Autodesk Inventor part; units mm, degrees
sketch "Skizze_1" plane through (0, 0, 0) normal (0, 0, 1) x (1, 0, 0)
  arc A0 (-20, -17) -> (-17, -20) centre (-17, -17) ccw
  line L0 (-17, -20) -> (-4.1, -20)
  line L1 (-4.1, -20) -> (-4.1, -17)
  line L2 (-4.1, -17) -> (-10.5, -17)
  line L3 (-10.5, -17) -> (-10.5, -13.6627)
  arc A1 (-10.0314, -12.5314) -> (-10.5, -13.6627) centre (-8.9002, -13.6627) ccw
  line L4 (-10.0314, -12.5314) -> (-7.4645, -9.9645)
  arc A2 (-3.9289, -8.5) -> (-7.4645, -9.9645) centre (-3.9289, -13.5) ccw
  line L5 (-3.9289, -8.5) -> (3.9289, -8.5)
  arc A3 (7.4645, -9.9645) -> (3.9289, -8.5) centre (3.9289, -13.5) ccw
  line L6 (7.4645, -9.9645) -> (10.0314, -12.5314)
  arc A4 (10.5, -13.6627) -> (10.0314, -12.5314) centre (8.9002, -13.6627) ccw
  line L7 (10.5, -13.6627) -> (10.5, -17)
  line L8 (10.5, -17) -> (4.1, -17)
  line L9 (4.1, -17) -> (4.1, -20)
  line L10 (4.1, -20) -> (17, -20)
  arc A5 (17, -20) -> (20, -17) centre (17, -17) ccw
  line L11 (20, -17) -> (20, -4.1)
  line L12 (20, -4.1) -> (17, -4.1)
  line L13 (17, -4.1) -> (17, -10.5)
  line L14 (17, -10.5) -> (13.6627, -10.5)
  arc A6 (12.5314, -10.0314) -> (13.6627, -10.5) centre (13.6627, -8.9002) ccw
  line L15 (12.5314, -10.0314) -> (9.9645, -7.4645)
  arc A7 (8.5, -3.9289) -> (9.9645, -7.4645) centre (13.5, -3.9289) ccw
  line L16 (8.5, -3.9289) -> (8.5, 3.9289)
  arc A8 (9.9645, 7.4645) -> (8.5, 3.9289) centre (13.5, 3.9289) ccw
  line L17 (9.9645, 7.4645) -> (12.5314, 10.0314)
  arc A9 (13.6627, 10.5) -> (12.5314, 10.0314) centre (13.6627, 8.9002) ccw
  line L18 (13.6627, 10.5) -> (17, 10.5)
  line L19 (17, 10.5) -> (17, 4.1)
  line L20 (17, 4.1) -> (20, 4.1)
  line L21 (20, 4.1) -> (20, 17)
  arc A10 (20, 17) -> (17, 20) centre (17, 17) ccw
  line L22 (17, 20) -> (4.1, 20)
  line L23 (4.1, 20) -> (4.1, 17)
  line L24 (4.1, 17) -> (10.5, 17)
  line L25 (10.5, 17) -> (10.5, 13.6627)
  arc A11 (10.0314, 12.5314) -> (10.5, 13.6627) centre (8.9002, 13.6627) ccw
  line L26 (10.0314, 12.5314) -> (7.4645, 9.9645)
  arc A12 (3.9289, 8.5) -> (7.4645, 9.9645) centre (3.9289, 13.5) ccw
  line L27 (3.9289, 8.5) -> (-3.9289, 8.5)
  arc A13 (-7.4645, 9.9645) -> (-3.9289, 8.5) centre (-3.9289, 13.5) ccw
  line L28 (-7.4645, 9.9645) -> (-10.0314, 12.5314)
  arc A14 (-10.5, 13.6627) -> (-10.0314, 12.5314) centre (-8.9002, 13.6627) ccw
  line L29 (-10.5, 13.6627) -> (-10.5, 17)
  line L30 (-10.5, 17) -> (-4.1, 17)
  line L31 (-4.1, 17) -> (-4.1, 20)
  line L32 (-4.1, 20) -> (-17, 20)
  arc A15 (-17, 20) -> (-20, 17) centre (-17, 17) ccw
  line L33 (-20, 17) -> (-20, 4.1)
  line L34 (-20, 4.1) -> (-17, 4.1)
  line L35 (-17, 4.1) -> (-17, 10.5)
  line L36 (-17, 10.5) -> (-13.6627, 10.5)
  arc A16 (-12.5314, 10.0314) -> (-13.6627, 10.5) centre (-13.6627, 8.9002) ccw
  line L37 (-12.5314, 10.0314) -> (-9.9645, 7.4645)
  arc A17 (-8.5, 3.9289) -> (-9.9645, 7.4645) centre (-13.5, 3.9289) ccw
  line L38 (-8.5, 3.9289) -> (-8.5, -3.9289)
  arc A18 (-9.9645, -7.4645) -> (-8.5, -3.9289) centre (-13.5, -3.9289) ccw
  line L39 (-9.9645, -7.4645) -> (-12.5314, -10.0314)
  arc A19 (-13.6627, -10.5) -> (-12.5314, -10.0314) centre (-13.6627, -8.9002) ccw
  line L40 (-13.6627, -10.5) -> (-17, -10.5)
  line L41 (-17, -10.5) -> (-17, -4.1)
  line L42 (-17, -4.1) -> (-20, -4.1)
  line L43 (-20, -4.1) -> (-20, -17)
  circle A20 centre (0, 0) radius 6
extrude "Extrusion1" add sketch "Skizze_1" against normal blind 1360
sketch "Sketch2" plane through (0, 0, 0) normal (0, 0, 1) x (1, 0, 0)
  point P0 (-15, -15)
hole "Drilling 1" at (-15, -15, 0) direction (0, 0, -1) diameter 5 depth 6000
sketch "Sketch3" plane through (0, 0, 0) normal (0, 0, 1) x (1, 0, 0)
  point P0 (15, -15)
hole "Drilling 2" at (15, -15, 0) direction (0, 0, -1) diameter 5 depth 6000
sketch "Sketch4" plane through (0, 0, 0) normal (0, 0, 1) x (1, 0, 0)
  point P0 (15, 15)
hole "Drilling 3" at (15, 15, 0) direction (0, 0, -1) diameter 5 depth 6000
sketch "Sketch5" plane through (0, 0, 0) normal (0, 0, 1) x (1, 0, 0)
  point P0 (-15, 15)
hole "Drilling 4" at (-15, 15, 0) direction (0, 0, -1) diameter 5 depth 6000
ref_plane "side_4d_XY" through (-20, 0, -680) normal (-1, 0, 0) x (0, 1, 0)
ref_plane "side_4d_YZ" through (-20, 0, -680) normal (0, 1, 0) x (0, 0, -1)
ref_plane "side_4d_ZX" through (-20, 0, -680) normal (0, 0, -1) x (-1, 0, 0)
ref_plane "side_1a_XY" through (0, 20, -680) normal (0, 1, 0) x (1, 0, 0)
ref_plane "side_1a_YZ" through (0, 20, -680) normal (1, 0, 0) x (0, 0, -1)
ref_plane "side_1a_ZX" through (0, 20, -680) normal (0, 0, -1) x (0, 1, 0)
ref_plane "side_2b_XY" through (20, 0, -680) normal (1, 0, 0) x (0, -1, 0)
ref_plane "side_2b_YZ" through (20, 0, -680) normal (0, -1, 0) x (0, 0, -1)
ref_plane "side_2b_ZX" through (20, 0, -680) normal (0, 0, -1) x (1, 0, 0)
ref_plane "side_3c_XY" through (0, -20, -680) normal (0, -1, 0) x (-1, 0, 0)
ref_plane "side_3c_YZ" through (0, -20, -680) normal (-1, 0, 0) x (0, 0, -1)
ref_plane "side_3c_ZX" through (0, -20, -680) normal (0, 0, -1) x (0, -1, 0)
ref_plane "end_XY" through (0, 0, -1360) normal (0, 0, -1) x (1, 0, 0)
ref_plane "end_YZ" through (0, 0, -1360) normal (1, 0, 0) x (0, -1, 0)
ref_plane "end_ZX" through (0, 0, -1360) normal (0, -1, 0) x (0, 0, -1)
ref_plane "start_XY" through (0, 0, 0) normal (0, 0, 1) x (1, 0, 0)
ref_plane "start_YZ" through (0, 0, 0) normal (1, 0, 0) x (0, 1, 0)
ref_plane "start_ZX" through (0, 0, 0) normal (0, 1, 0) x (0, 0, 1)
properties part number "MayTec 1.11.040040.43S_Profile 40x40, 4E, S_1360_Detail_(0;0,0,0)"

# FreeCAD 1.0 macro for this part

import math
import FreeCAD as App
import Part
import Sketcher
from FreeCAD import Vector

doc = App.newDocument("Part")
body = doc.addObject("PartDesign::Body", "Body")

# Sketch on XY plane
sketch1 = body.newObject("Sketcher::SketchObject", "Sketch")
sketch1.AttachmentSupport = (doc.getObject("XY_Plane"), [""])
sketch1.MapMode = "FlatFace"
sketch1.addGeometry(Part.LineSegment(Vector(-20, -4.1, 0), Vector(-20, -17, 0)), False)
sketch1.addGeometry(Part.ArcOfCircle(Part.Circle(Vector(-17, -17, 0), Vector(0, 0, 1), 3), math.radians(180), math.radians(270)), False)
sketch1.addGeometry(Part.LineSegment(Vector(-17, -20, 0), Vector(-4.1, -20, 0)), False)
sketch1.addGeometry(Part.LineSegment(Vector(-4.1, -20, 0), Vector(-4.1, -17, 0)), False)
sketch1.addGeometry(Part.LineSegment(Vector(-4.1, -17, 0), Vector(-10.5, -17, 0)), False)
sketch1.addGeometry(Part.LineSegment(Vector(-10.5, -17, 0), Vector(-10.5, -13.7, 0)), False)
sketch1.addGeometry(Part.ArcOfCircle(Part.Circle(Vector(-8.9, -13.7, 0), Vector(0, 0, 1), 1.6), math.radians(135), math.radians(180)), False)
sketch1.addGeometry(Part.LineSegment(Vector(-10, -12.5, 0), Vector(-7.5, -10, 0)), False)
sketch1.addGeometry(Part.ArcOfCircle(Part.Circle(Vector(-3.9, -13.5, 0), Vector(0, 0, 1), 5), math.radians(90), math.radians(135)), False)
sketch1.addGeometry(Part.LineSegment(Vector(-3.9, -8.5, 0), Vector(3.9, -8.5, 0)), False)
sketch1.addGeometry(Part.ArcOfCircle(Part.Circle(Vector(3.9, -13.5, 0), Vector(0, 0, 1), 5), math.radians(45), math.radians(90)), False)
sketch1.addGeometry(Part.LineSegment(Vector(7.5, -10, 0), Vector(10, -12.5, 0)), False)
sketch1.addGeometry(Part.ArcOfCircle(Part.Circle(Vector(8.9, -13.7, 0), Vector(0, 0, 1), 1.6), math.radians(0), math.radians(45)), False)
sketch1.addGeometry(Part.LineSegment(Vector(10.5, -13.7, 0), Vector(10.5, -17, 0)), False)
sketch1.addGeometry(Part.LineSegment(Vector(10.5, -17, 0), Vector(4.1, -17, 0)), False)
sketch1.addGeometry(Part.LineSegment(Vector(4.1, -17, 0), Vector(4.1, -20, 0)), False)
sketch1.addGeometry(Part.LineSegment(Vector(4.1, -20, 0), Vector(17, -20, 0)), False)
sketch1.addGeometry(Part.ArcOfCircle(Part.Circle(Vector(17, -17, 0), Vector(0, 0, 1), 3), math.radians(-90), math.radians(0)), False)
sketch1.addGeometry(Part.LineSegment(Vector(20, -17, 0), Vector(20, -4.1, 0)), False)
sketch1.addGeometry(Part.LineSegment(Vector(20, -4.1, 0), Vector(17, -4.1, 0)), False)
sketch1.addGeometry(Part.LineSegment(Vector(17, -4.1, 0), Vector(17, -10.5, 0)), False)
sketch1.addGeometry(Part.LineSegment(Vector(17, -10.5, 0), Vector(13.7, -10.5, 0)), False)
sketch1.addGeometry(Part.ArcOfCircle(Part.Circle(Vector(13.7, -8.9, 0), Vector(0, 0, 1), 1.6), math.radians(-135), math.radians(-90)), False)
sketch1.addGeometry(Part.LineSegment(Vector(12.5, -10, 0), Vector(10, -7.5, 0)), False)
sketch1.addGeometry(Part.ArcOfCircle(Part.Circle(Vector(13.5, -3.9, 0), Vector(0, 0, 1), 5), math.radians(180), math.radians(225)), False)
sketch1.addGeometry(Part.LineSegment(Vector(8.5, -3.9, 0), Vector(8.5, 3.9, 0)), False)
sketch1.addGeometry(Part.ArcOfCircle(Part.Circle(Vector(13.5, 3.9, 0), Vector(0, 0, 1), 5), math.radians(135), math.radians(180)), False)
sketch1.addGeometry(Part.LineSegment(Vector(10, 7.5, 0), Vector(12.5, 10, 0)), False)
sketch1.addGeometry(Part.ArcOfCircle(Part.Circle(Vector(13.7, 8.9, 0), Vector(0, 0, 1), 1.6), math.radians(90), math.radians(135)), False)
sketch1.addGeometry(Part.LineSegment(Vector(13.7, 10.5, 0), Vector(17, 10.5, 0)), False)
sketch1.addGeometry(Part.LineSegment(Vector(17, 10.5, 0), Vector(17, 4.1, 0)), False)
sketch1.addGeometry(Part.LineSegment(Vector(17, 4.1, 0), Vector(20, 4.1, 0)), False)
sketch1.addGeometry(Part.LineSegment(Vector(20, 4.1, 0), Vector(20, 17, 0)), False)
sketch1.addGeometry(Part.ArcOfCircle(Part.Circle(Vector(17, 17, 0), Vector(0, 0, 1), 3), math.radians(0), math.radians(90)), False)
sketch1.addGeometry(Part.LineSegment(Vector(17, 20, 0), Vector(4.1, 20, 0)), False)
sketch1.addGeometry(Part.LineSegment(Vector(4.1, 20, 0), Vector(4.1, 17, 0)), False)
sketch1.addGeometry(Part.LineSegment(Vector(4.1, 17, 0), Vector(10.5, 17, 0)), False)
sketch1.addGeometry(Part.LineSegment(Vector(10.5, 17, 0), Vector(10.5, 13.7, 0)), False)
sketch1.addGeometry(Part.ArcOfCircle(Part.Circle(Vector(8.9, 13.7, 0), Vector(0, 0, 1), 1.6), math.radians(-45), math.radians(0)), False)
sketch1.addGeometry(Part.LineSegment(Vector(10, 12.5, 0), Vector(7.5, 10, 0)), False)
sketch1.addGeometry(Part.ArcOfCircle(Part.Circle(Vector(3.9, 13.5, 0), Vector(0, 0, 1), 5), math.radians(-90), math.radians(-45)), False)
sketch1.addGeometry(Part.LineSegment(Vector(3.9, 8.5, 0), Vector(-3.9, 8.5, 0)), False)
sketch1.addGeometry(Part.ArcOfCircle(Part.Circle(Vector(-3.9, 13.5, 0), Vector(0, 0, 1), 5), math.radians(-135), math.radians(-90)), False)
sketch1.addGeometry(Part.LineSegment(Vector(-7.5, 10, 0), Vector(-10, 12.5, 0)), False)
sketch1.addGeometry(Part.ArcOfCircle(Part.Circle(Vector(-8.9, 13.7, 0), Vector(0, 0, 1), 1.6), math.radians(180), math.radians(225)), False)
sketch1.addGeometry(Part.LineSegment(Vector(-10.5, 13.7, 0), Vector(-10.5, 17, 0)), False)
sketch1.addGeometry(Part.LineSegment(Vector(-10.5, 17, 0), Vector(-4.1, 17, 0)), False)
sketch1.addGeometry(Part.LineSegment(Vector(-4.1, 17, 0), Vector(-4.1, 20, 0)), False)
sketch1.addGeometry(Part.LineSegment(Vector(-4.1, 20, 0), Vector(-17, 20, 0)), False)
sketch1.addGeometry(Part.ArcOfCircle(Part.Circle(Vector(-17, 17, 0), Vector(0, 0, 1), 3), math.radians(90), math.radians(180)), False)
sketch1.addGeometry(Part.LineSegment(Vector(-20, 17, 0), Vector(-20, 4.1, 0)), False)
sketch1.addGeometry(Part.LineSegment(Vector(-20, 4.1, 0), Vector(-17, 4.1, 0)), False)
sketch1.addGeometry(Part.LineSegment(Vector(-17, 4.1, 0), Vector(-17, 10.5, 0)), False)
sketch1.addGeometry(Part.LineSegment(Vector(-17, 10.5, 0), Vector(-13.7, 10.5, 0)), False)
sketch1.addGeometry(Part.ArcOfCircle(Part.Circle(Vector(-13.7, 8.9, 0), Vector(0, 0, 1), 1.6), math.radians(45), math.radians(90)), False)
sketch1.addGeometry(Part.LineSegment(Vector(-12.5, 10, 0), Vector(-10, 7.5, 0)), False)
sketch1.addGeometry(Part.ArcOfCircle(Part.Circle(Vector(-13.5, 3.9, 0), Vector(0, 0, 1), 5), math.radians(0), math.radians(45)), False)
sketch1.addGeometry(Part.LineSegment(Vector(-8.5, 3.9, 0), Vector(-8.5, -3.9, 0)), False)
sketch1.addGeometry(Part.ArcOfCircle(Part.Circle(Vector(-13.5, -3.9, 0), Vector(0, 0, 1), 5), math.radians(-45), math.radians(0)), False)
sketch1.addGeometry(Part.LineSegment(Vector(-10, -7.5, 0), Vector(-12.5, -10, 0)), False)
sketch1.addGeometry(Part.ArcOfCircle(Part.Circle(Vector(-13.7, -8.9, 0), Vector(0, 0, 1), 1.6), math.radians(-90), math.radians(-45)), False)
sketch1.addGeometry(Part.LineSegment(Vector(-13.7, -10.5, 0), Vector(-17, -10.5, 0)), False)
sketch1.addGeometry(Part.LineSegment(Vector(-17, -10.5, 0), Vector(-17, -4.1, 0)), False)
sketch1.addGeometry(Part.LineSegment(Vector(-17, -4.1, 0), Vector(-20, -4.1, 0)), False)
sketch1.addGeometry(Part.Circle(Vector(0, 0, 0), Vector(0, 0, 1), 6), False)
sketch1.addConstraint(Sketcher.Constraint("Tangent", 0, 2, 1, 1))
sketch1.addConstraint(Sketcher.Constraint("Tangent", 1, 2, 2, 1))
sketch1.addConstraint(Sketcher.Constraint("Coincident", 2, 2, 3, 1))
sketch1.addConstraint(Sketcher.Constraint("Coincident", 3, 2, 4, 1))
sketch1.addConstraint(Sketcher.Constraint("Coincident", 4, 2, 5, 1))
sketch1.addConstraint(Sketcher.Constraint("Tangent", 5, 2, 6, 2))
sketch1.addConstraint(Sketcher.Constraint("Tangent", 6, 1, 7, 1))
sketch1.addConstraint(Sketcher.Constraint("Tangent", 7, 2, 8, 2))
sketch1.addConstraint(Sketcher.Constraint("Tangent", 8, 1, 9, 1))
sketch1.addConstraint(Sketcher.Constraint("Tangent", 9, 2, 10, 2))
sketch1.addConstraint(Sketcher.Constraint("Tangent", 10, 1, 11, 1))
sketch1.addConstraint(Sketcher.Constraint("Tangent", 11, 2, 12, 2))
sketch1.addConstraint(Sketcher.Constraint("Tangent", 12, 1, 13, 1))
sketch1.addConstraint(Sketcher.Constraint("Coincident", 13, 2, 14, 1))
sketch1.addConstraint(Sketcher.Constraint("Coincident", 14, 2, 15, 1))
sketch1.addConstraint(Sketcher.Constraint("Coincident", 15, 2, 16, 1))
sketch1.addConstraint(Sketcher.Constraint("Tangent", 16, 2, 17, 1))
sketch1.addConstraint(Sketcher.Constraint("Tangent", 17, 2, 18, 1))
sketch1.addConstraint(Sketcher.Constraint("Coincident", 18, 2, 19, 1))
sketch1.addConstraint(Sketcher.Constraint("Coincident", 19, 2, 20, 1))
sketch1.addConstraint(Sketcher.Constraint("Coincident", 20, 2, 21, 1))
sketch1.addConstraint(Sketcher.Constraint("Tangent", 21, 2, 22, 2))
sketch1.addConstraint(Sketcher.Constraint("Tangent", 22, 1, 23, 1))
sketch1.addConstraint(Sketcher.Constraint("Tangent", 23, 2, 24, 2))
sketch1.addConstraint(Sketcher.Constraint("Tangent", 24, 1, 25, 1))
sketch1.addConstraint(Sketcher.Constraint("Tangent", 25, 2, 26, 2))
sketch1.addConstraint(Sketcher.Constraint("Tangent", 26, 1, 27, 1))
sketch1.addConstraint(Sketcher.Constraint("Tangent", 27, 2, 28, 2))
sketch1.addConstraint(Sketcher.Constraint("Tangent", 28, 1, 29, 1))
sketch1.addConstraint(Sketcher.Constraint("Coincident", 29, 2, 30, 1))
sketch1.addConstraint(Sketcher.Constraint("Coincident", 30, 2, 31, 1))
sketch1.addConstraint(Sketcher.Constraint("Coincident", 31, 2, 32, 1))
sketch1.addConstraint(Sketcher.Constraint("Tangent", 32, 2, 33, 1))
sketch1.addConstraint(Sketcher.Constraint("Tangent", 33, 2, 34, 1))
sketch1.addConstraint(Sketcher.Constraint("Coincident", 34, 2, 35, 1))
sketch1.addConstraint(Sketcher.Constraint("Coincident", 35, 2, 36, 1))
sketch1.addConstraint(Sketcher.Constraint("Coincident", 36, 2, 37, 1))
sketch1.addConstraint(Sketcher.Constraint("Tangent", 37, 2, 38, 2))
sketch1.addConstraint(Sketcher.Constraint("Tangent", 38, 1, 39, 1))
sketch1.addConstraint(Sketcher.Constraint("Tangent", 39, 2, 40, 2))
sketch1.addConstraint(Sketcher.Constraint("Tangent", 40, 1, 41, 1))
sketch1.addConstraint(Sketcher.Constraint("Tangent", 41, 2, 42, 2))
sketch1.addConstraint(Sketcher.Constraint("Tangent", 42, 1, 43, 1))
sketch1.addConstraint(Sketcher.Constraint("Tangent", 43, 2, 44, 2))
sketch1.addConstraint(Sketcher.Constraint("Tangent", 44, 1, 45, 1))
sketch1.addConstraint(Sketcher.Constraint("Coincident", 45, 2, 46, 1))
sketch1.addConstraint(Sketcher.Constraint("Coincident", 46, 2, 47, 1))
sketch1.addConstraint(Sketcher.Constraint("Coincident", 47, 2, 48, 1))
sketch1.addConstraint(Sketcher.Constraint("Tangent", 48, 2, 49, 1))
sketch1.addConstraint(Sketcher.Constraint("Tangent", 49, 2, 50, 1))
sketch1.addConstraint(Sketcher.Constraint("Coincident", 50, 2, 51, 1))
sketch1.addConstraint(Sketcher.Constraint("Coincident", 51, 2, 52, 1))
sketch1.addConstraint(Sketcher.Constraint("Coincident", 52, 2, 53, 1))
sketch1.addConstraint(Sketcher.Constraint("Tangent", 53, 2, 54, 2))
sketch1.addConstraint(Sketcher.Constraint("Tangent", 54, 1, 55, 1))
sketch1.addConstraint(Sketcher.Constraint("Tangent", 55, 2, 56, 2))
sketch1.addConstraint(Sketcher.Constraint("Tangent", 56, 1, 57, 1))
sketch1.addConstraint(Sketcher.Constraint("Tangent", 57, 2, 58, 2))
sketch1.addConstraint(Sketcher.Constraint("Tangent", 58, 1, 59, 1))
sketch1.addConstraint(Sketcher.Constraint("Tangent", 59, 2, 60, 2))
sketch1.addConstraint(Sketcher.Constraint("Tangent", 60, 1, 61, 1))
sketch1.addConstraint(Sketcher.Constraint("Coincident", 61, 2, 62, 1))
sketch1.addConstraint(Sketcher.Constraint("Coincident", 62, 2, 63, 1))
sketch1.addConstraint(Sketcher.Constraint("Coincident", 63, 2, 0, 1))
sketch1.addConstraint(Sketcher.Constraint("Vertical", 0))
sketch1.addConstraint(Sketcher.Constraint("Horizontal", 2))
sketch1.addConstraint(Sketcher.Constraint("Vertical", 3))
sketch1.addConstraint(Sketcher.Constraint("Horizontal", 4))
sketch1.addConstraint(Sketcher.Constraint("Vertical", 5))
sketch1.addConstraint(Sketcher.Constraint("Horizontal", 9))
sketch1.addConstraint(Sketcher.Constraint("Vertical", 13))
sketch1.addConstraint(Sketcher.Constraint("Horizontal", 14))
sketch1.addConstraint(Sketcher.Constraint("Vertical", 15))
sketch1.addConstraint(Sketcher.Constraint("Horizontal", 16))
sketch1.addConstraint(Sketcher.Constraint("Vertical", 18))
sketch1.addConstraint(Sketcher.Constraint("Horizontal", 19))
sketch1.addConstraint(Sketcher.Constraint("Vertical", 20))
sketch1.addConstraint(Sketcher.Constraint("Horizontal", 21))
sketch1.addConstraint(Sketcher.Constraint("Vertical", 25))
sketch1.addConstraint(Sketcher.Constraint("Horizontal", 29))
sketch1.addConstraint(Sketcher.Constraint("Vertical", 30))
sketch1.addConstraint(Sketcher.Constraint("Horizontal", 31))
sketch1.addConstraint(Sketcher.Constraint("Vertical", 32))
sketch1.addConstraint(Sketcher.Constraint("Horizontal", 34))
sketch1.addConstraint(Sketcher.Constraint("Vertical", 35))
sketch1.addConstraint(Sketcher.Constraint("Horizontal", 36))
sketch1.addConstraint(Sketcher.Constraint("Vertical", 37))
sketch1.addConstraint(Sketcher.Constraint("Horizontal", 41))
sketch1.addConstraint(Sketcher.Constraint("Vertical", 45))
sketch1.addConstraint(Sketcher.Constraint("Horizontal", 46))
sketch1.addConstraint(Sketcher.Constraint("Vertical", 47))
sketch1.addConstraint(Sketcher.Constraint("Horizontal", 48))
sketch1.addConstraint(Sketcher.Constraint("Vertical", 50))
sketch1.addConstraint(Sketcher.Constraint("Horizontal", 51))
sketch1.addConstraint(Sketcher.Constraint("Vertical", 52))
sketch1.addConstraint(Sketcher.Constraint("Horizontal", 53))
sketch1.addConstraint(Sketcher.Constraint("Vertical", 57))
sketch1.addConstraint(Sketcher.Constraint("Horizontal", 61))
sketch1.addConstraint(Sketcher.Constraint("Vertical", 62))
sketch1.addConstraint(Sketcher.Constraint("Horizontal", 63))
sketch1.addConstraint(Sketcher.Constraint("Coincident", 64, 3, -1, 1))
sketch1.addConstraint(Sketcher.Constraint("Equal", 8, 10))
sketch1.addConstraint(Sketcher.Constraint("Equal", 6, 12))
sketch1.addConstraint(Sketcher.Constraint("Equal", 1, 17))
sketch1.addConstraint(Sketcher.Constraint("Equal", 12, 22))
sketch1.addConstraint(Sketcher.Constraint("Equal", 10, 24))
sketch1.addConstraint(Sketcher.Constraint("Equal", 24, 26))
sketch1.addConstraint(Sketcher.Constraint("Equal", 22, 28))
sketch1.addConstraint(Sketcher.Constraint("Equal", 17, 33))
sketch1.addConstraint(Sketcher.Constraint("Equal", 28, 38))
sketch1.addConstraint(Sketcher.Constraint("Equal", 26, 40))
sketch1.addConstraint(Sketcher.Constraint("Equal", 40, 42))
sketch1.addConstraint(Sketcher.Constraint("Equal", 38, 44))
sketch1.addConstraint(Sketcher.Constraint("Equal", 33, 49))
sketch1.addConstraint(Sketcher.Constraint("Equal", 44, 54))
sketch1.addConstraint(Sketcher.Constraint("Equal", 42, 56))
sketch1.addConstraint(Sketcher.Constraint("Equal", 56, 58))
sketch1.addConstraint(Sketcher.Constraint("Equal", 54, 60))
sketch1.addConstraint(Sketcher.Constraint("Symmetric", 1, 3, 33, 3, -1, 1))
sketch1.addConstraint(Sketcher.Constraint("Symmetric", 6, 3, 38, 3, -1, 1))
sketch1.addConstraint(Sketcher.Constraint("Symmetric", 8, 3, 40, 3, -1, 1))
sketch1.addConstraint(Sketcher.Constraint("Symmetric", 12, 3, 44, 3, -1, 1))
sketch1.addConstraint(Sketcher.Constraint("Symmetric", 17, 3, 49, 3, -1, 1))
sketch1.addConstraint(Sketcher.Constraint("Symmetric", 22, 3, 54, 3, -1, 1))
sketch1.addConstraint(Sketcher.Constraint("Symmetric", 24, 3, 56, 3, -1, 1))
sketch1.addConstraint(Sketcher.Constraint("Symmetric", 28, 3, 60, 3, -1, 1))
sketch1.addConstraint(Sketcher.Constraint("Symmetric", 3, 2, 35, 2, -1, 1))
sketch1.addConstraint(Sketcher.Constraint("Symmetric", 14, 2, 46, 2, -1, 1))
sketch1.addConstraint(Sketcher.Constraint("Symmetric", 19, 2, 51, 2, -1, 1))
sketch1.addConstraint(Sketcher.Constraint("Symmetric", 30, 2, 62, 2, -1, 1))
sketch1.addConstraint(Sketcher.Constraint("Symmetric", 6, 3, 12, 3, -2))
sketch1.addConstraint(Sketcher.Constraint("Symmetric", 1, 3, 17, 3, -2))
sketch1.addConstraint(Sketcher.Constraint("Symmetric", 28, 3, 54, 3, -2))
sketch1.addConstraint(Sketcher.Constraint("Symmetric", 3, 2, 14, 2, -2))
sketch1.addConstraint(Sketcher.Constraint("Symmetric", 30, 2, 51, 2, -2))
sketch1.addConstraint(Sketcher.Constraint("Perpendicular", 7, 11))
sketch1.addConstraint(Sketcher.Constraint("Parallel", 11, 23))
sketch1.addConstraint(Sketcher.Constraint("Perpendicular", 23, 27))
sketch1.addConstraint(Sketcher.Constraint("Perpendicular", 39, 43))
sketch1.addConstraint(Sketcher.Constraint("Perpendicular", 55, 59))
sketch1.addConstraint(Sketcher.Constraint("Horizontal", 26, 3, 56, 3))
sketch1.addConstraint(Sketcher.Constraint("Horizontal", 0, 2, 3, 2))
sketch1.addConstraint(Sketcher.Constraint("Vertical", 16, 2, 19, 2))
sketch1.addConstraint(Sketcher.Constraint("Equal", 48, 0))
sketch1.addConstraint(Sketcher.Constraint("Equal", 61, 5))
sketch1.addConstraint(Sketcher.Constraint("Equal", 46, 20))
sketch1.addConstraint(Sketcher.Constraint("Equal", 41, 25))
sketch1.addConstraint(Sketcher.Constraint("Equal", 11, 23))
sketch1.addConstraint(Sketcher.Constraint("Diameter", 64, 12.0))
sketch1.addConstraint(Sketcher.Constraint("Radius", 1, 3.0))
sketch1.addConstraint(Sketcher.Constraint("Radius", 8, 5.0))
sketch1.addConstraint(Sketcher.Constraint("DistanceX", 2, 1, 2, 2, 12.9))
sketch1.addConstraint(Sketcher.Constraint("DistanceX", 4, 2, 4, 1, 6.4))
sketch1.addConstraint(Sketcher.Constraint("DistanceX", 1, 3, -1, 1, 17.0))
sketch1.addConstraint(Sketcher.Constraint("DistanceY", 8, 3, -1, 1, 13.5))
sketch1.addConstraint(Sketcher.Constraint("Radius", 6, 1.5998))
sketch1.addConstraint(Sketcher.Constraint("DistanceX", 9, 1, 9, 2, 7.8578))
pad1 = body.newObject("PartDesign::Pad", "Pad")
pad1.Profile = sketch1
pad1.Length = 1360
pad1.Reversed = True

# Sketch on XY plane
sketch2 = body.newObject("Sketcher::SketchObject", "Sketch001")
sketch2.AttachmentSupport = (doc.getObject("XY_Plane"), [""])
sketch2.MapMode = "FlatFace"
sketch2.addGeometry(Part.Circle(Vector(-15, -15, 0), Vector(0, 0, 1), 2.5), False)
sketch2.addConstraint(Sketcher.Constraint("Diameter", 0, 5.0))
sketch2.addConstraint(Sketcher.Constraint("DistanceX", 0, 3, -1, 1, 15.0))
sketch2.addConstraint(Sketcher.Constraint("DistanceY", 0, 3, -1, 1, 15.0))
doc.recompute()
hole = body.newObject("PartDesign::Hole", "Hole")
hole.Profile = sketch2
hole.ThreadType = "None"
hole.Diameter = 5
hole.DepthType = "Dimension"
hole.Depth = 6000
hole.DrillPoint = "Flat"

# Sketch on XY plane
sketch3 = body.newObject("Sketcher::SketchObject", "Sketch002")
sketch3.AttachmentSupport = (doc.getObject("XY_Plane"), [""])
sketch3.MapMode = "FlatFace"
sketch3.addGeometry(Part.Circle(Vector(15, -15, 0), Vector(0, 0, 1), 2.5), False)
sketch3.addConstraint(Sketcher.Constraint("Diameter", 0, 5.0))
sketch3.addConstraint(Sketcher.Constraint("DistanceX", -1, 1, 0, 3, 15.0))
sketch3.addConstraint(Sketcher.Constraint("DistanceY", 0, 3, -1, 1, 15.0))
doc.recompute()
hole2 = body.newObject("PartDesign::Hole", "Hole001")
hole2.Profile = sketch3
hole2.ThreadType = "None"
hole2.Diameter = 5
hole2.DepthType = "Dimension"
hole2.Depth = 6000
hole2.DrillPoint = "Flat"

# Sketch on XY plane
sketch4 = body.newObject("Sketcher::SketchObject", "Sketch003")
sketch4.AttachmentSupport = (doc.getObject("XY_Plane"), [""])
sketch4.MapMode = "FlatFace"
sketch4.addGeometry(Part.Circle(Vector(15, 15, 0), Vector(0, 0, 1), 2.5), False)
sketch4.addConstraint(Sketcher.Constraint("Diameter", 0, 5.0))
sketch4.addConstraint(Sketcher.Constraint("DistanceX", -1, 1, 0, 3, 15.0))
sketch4.addConstraint(Sketcher.Constraint("DistanceY", -1, 1, 0, 3, 15.0))
doc.recompute()
hole3 = body.newObject("PartDesign::Hole", "Hole002")
hole3.Profile = sketch4
hole3.ThreadType = "None"
hole3.Diameter = 5
hole3.DepthType = "Dimension"
hole3.Depth = 6000
hole3.DrillPoint = "Flat"

# Sketch on XY plane
sketch5 = body.newObject("Sketcher::SketchObject", "Sketch004")
sketch5.AttachmentSupport = (doc.getObject("XY_Plane"), [""])
sketch5.MapMode = "FlatFace"
sketch5.addGeometry(Part.Circle(Vector(-15, 15, 0), Vector(0, 0, 1), 2.5), False)
sketch5.addConstraint(Sketcher.Constraint("Diameter", 0, 5.0))
sketch5.addConstraint(Sketcher.Constraint("DistanceX", 0, 3, -1, 1, 15.0))
sketch5.addConstraint(Sketcher.Constraint("DistanceY", -1, 1, 0, 3, 15.0))
doc.recompute()
hole4 = body.newObject("PartDesign::Hole", "Hole003")
hole4.Profile = sketch5
hole4.ThreadType = "None"
hole4.Diameter = 5
hole4.DepthType = "Dimension"
hole4.Depth = 6000
hole4.DrillPoint = "Flat"

doc.recompute()
